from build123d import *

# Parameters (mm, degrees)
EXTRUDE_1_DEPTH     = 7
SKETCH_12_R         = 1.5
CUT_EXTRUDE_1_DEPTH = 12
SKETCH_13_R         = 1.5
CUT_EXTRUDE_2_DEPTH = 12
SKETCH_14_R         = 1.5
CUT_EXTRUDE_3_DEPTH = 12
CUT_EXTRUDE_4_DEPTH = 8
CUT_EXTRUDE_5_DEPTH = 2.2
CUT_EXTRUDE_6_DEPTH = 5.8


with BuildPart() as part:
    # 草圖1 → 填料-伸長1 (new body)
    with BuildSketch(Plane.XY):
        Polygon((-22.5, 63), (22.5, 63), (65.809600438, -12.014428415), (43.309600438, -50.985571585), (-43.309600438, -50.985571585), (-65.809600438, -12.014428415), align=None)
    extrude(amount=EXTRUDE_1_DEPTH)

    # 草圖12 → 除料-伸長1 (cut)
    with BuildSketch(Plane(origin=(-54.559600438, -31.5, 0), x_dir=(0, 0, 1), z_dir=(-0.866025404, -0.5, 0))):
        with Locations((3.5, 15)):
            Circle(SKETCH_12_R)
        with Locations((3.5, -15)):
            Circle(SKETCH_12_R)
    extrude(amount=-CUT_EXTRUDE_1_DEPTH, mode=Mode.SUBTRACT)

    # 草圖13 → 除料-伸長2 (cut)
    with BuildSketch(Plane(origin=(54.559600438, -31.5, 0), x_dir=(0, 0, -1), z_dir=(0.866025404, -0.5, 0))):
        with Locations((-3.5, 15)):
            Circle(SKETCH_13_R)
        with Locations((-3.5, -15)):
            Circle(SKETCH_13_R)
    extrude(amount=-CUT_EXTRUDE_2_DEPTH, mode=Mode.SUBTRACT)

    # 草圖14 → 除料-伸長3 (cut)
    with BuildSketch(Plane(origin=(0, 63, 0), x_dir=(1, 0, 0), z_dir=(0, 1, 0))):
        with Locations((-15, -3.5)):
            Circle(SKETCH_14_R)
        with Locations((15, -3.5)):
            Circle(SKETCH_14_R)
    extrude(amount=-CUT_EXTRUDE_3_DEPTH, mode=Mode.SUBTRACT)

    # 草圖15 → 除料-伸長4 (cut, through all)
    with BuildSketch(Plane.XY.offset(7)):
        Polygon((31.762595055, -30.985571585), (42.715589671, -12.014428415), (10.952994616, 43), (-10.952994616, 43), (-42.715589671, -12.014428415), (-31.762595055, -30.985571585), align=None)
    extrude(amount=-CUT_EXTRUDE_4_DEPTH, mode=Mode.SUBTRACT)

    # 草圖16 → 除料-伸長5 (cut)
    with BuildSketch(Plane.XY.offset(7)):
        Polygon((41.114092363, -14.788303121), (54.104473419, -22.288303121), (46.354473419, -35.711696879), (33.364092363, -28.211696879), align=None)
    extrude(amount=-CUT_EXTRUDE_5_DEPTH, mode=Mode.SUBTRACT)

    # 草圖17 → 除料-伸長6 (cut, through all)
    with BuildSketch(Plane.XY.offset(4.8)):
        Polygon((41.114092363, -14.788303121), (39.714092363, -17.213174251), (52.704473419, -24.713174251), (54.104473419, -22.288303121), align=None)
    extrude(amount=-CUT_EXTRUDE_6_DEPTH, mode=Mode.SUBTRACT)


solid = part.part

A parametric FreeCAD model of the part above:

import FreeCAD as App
import Part
import Sketcher

V = App.Vector
Q = App.Units.Quantity

doc = App.newDocument("Part")
body = doc.addObject("PartDesign::Body", "Body")

# Sketch on XY plane
sketch1 = doc.addObject("Sketcher::SketchObject", "Sketch")
body.addObject(sketch1)
sketch1.AttachmentSupport = (doc.XY_Plane, [""])
sketch1.MapMode = "FlatFace"
sketch1.addGeometry([
    Part.LineSegment(V(22, 63, 0), V(-22, 63, 0)),  # 0
    Part.LineSegment(V(-22, 63, 0), V(-66, -12, 0)),  # 1
    Part.LineSegment(V(-66, -12, 0), V(-43, -51, 0)),  # 2
    Part.LineSegment(V(-43, -51, 0), V(43, -51, 0)),  # 3
    Part.LineSegment(V(43, -51, 0), V(66, -12, 0)),  # 4
    Part.LineSegment(V(66, -12, 0), V(22, 63, 0)),  # 5
], False)
sketch1.addConstraint([
    Sketcher.Constraint("Coincident", 0, 2, 1, 1),
    Sketcher.Constraint("Coincident", 1, 2, 2, 1),
    Sketcher.Constraint("Coincident", 2, 2, 3, 1),
    Sketcher.Constraint("Coincident", 3, 2, 4, 1),
    Sketcher.Constraint("Coincident", 4, 2, 5, 1),
    Sketcher.Constraint("Coincident", 5, 2, 0, 1),
    Sketcher.Constraint("Horizontal", 0),
    Sketcher.Constraint("Horizontal", 3),
    Sketcher.Constraint("Symmetric", 1, 2, 4, 2, -2),
    Sketcher.Constraint("Parallel", 1, 4),
    Sketcher.Constraint("Parallel", 2, 5),
    Sketcher.Constraint("Equal", 2, 4),
    Sketcher.Constraint("DistanceX", 0, 2, 0, 1, 45.0),
    Sketcher.Constraint("Angle", 1, Q("-120 deg")),
    Sketcher.Constraint("Distance", 2, 45.0),
    Sketcher.Constraint("DistanceY", -1, 1, 0, 2, 63.0),
    Sketcher.Constraint("DistanceX", 3, 1, 3, 2, 86.619201),
])
pad1 = doc.addObject("PartDesign::Pad", "Pad")
body.addObject(pad1)
pad1.Profile = sketch1
pad1.Length = 7

# Sketch on an angled plane
sketch2 = doc.addObject("Sketcher::SketchObject", "Sketch001")
body.addObject(sketch2)
sketch2.Placement = App.Placement(V(-54.5596, -31.5, 0), App.Rotation(V(0, 0, 1), V(-0.5, 0.866025404, 0), V(-0.866025404, -0.5, 0), "ZXY"))
sketch2.addGeometry([
    Part.Circle(V(3.5, 15, 0), V(0, 0, 1), 1.5),
    Part.Circle(V(3.5, -15, 0), V(0, 0, 1), 1.5),
], False)
sketch2.addConstraint([
    Sketcher.Constraint("Equal", 0, 1),
    Sketcher.Constraint("Symmetric", 0, 3, 1, 3, -1),
    Sketcher.Constraint("Diameter", 0, 3.0),
    Sketcher.Constraint("DistanceY", -1, 1, 0, 3, 15.0),
    Sketcher.Constraint("DistanceX", -1, 1, 0, 3, 3.5),
])
pocket1 = doc.addObject("PartDesign::Pocket", "Pocket")
body.addObject(pocket1)
pocket1.Profile = sketch2
pocket1.Length = 12

# Sketch on an angled plane
sketch3 = doc.addObject("Sketcher::SketchObject", "Sketch002")
body.addObject(sketch3)
sketch3.Placement = App.Placement(V(54.5596, -31.5, 0), App.Rotation(V(0, 0, -1), V(0.5, 0.866025404, 0), V(0.866025404, -0.5, 0), "ZXY"))
sketch3.addGeometry([
    Part.Circle(V(-3.5, 15, 0), V(0, 0, 1), 1.5),
    Part.Circle(V(-3.5, -15, 0), V(0, 0, 1), 1.5),
], False)
sketch3.addConstraint([
    Sketcher.Constraint("Equal", 0, 1),
    Sketcher.Constraint("Symmetric", 0, 3, 1, 3, -1),
    Sketcher.Constraint("Diameter", 0, 3.0),
    Sketcher.Constraint("DistanceY", -1, 1, 0, 3, 15.0),
    Sketcher.Constraint("DistanceX", 0, 3, -1, 1, 3.5),
])
pocket2 = doc.addObject("PartDesign::Pocket", "Pocket001")
body.addObject(pocket2)
pocket2.Profile = sketch3
pocket2.Length = 12

# Sketch on XZ plane
sketch4 = doc.addObject("Sketcher::SketchObject", "Sketch003")
body.addObject(sketch4)
sketch4.AttachmentSupport = (doc.XZ_Plane, [""])
sketch4.MapMode = "FlatFace"
sketch4.AttachmentOffset = App.Placement(V(0, 0, -63), App.Rotation())
sketch4.addGeometry([
    Part.Circle(V(-15, 3.5, 0), V(0, 0, 1), 1.5),
    Part.Circle(V(15, 3.5, 0), V(0, 0, 1), 1.5),
], False)
sketch4.addConstraint([
    Sketcher.Constraint("Equal", 0, 1),
    Sketcher.Constraint("Symmetric", 0, 3, 1, 3, -2),
    Sketcher.Constraint("Diameter", 0, 3.0),
    Sketcher.Constraint("DistanceX", 0, 3, -1, 1, 15.0),
    Sketcher.Constraint("DistanceY", -1, 1, 0, 3, 3.5),
])
pocket3 = doc.addObject("PartDesign::Pocket", "Pocket002")
body.addObject(pocket3)
pocket3.Profile = sketch4
pocket3.Length = 12
pocket3.Reversed = True

# Sketch on XY plane
sketch5 = doc.addObject("Sketcher::SketchObject", "Sketch004")
body.addObject(sketch5)
sketch5.AttachmentSupport = (doc.XY_Plane, [""])
sketch5.MapMode = "FlatFace"
sketch5.AttachmentOffset = App.Placement(V(0, 0, 7), App.Rotation())
sketch5.addGeometry([
    Part.LineSegment(V(32, -31, 0), V(43, -12, 0)),  # 0
    Part.LineSegment(V(43, -12, 0), V(11, 43, 0)),  # 1
    Part.LineSegment(V(11, 43, 0), V(-11, 43, 0)),  # 2
    Part.LineSegment(V(-11, 43, 0), V(-43, -12, 0)),  # 3
    Part.LineSegment(V(-43, -12, 0), V(-32, -31, 0)),  # 4
    Part.LineSegment(V(-32, -31, 0), V(32, -31, 0)),  # 5
], False)
sketch5.addConstraint([
    Sketcher.Constraint("Coincident", 0, 2, 1, 1),
    Sketcher.Constraint("Coincident", 1, 2, 2, 1),
    Sketcher.Constraint("Coincident", 2, 2, 3, 1),
    Sketcher.Constraint("Coincident", 3, 2, 4, 1),
    Sketcher.Constraint("Coincident", 4, 2, 5, 1),
    Sketcher.Constraint("Coincident", 5, 2, 0, 1),
    Sketcher.Constraint("Horizontal", 2),
    Sketcher.Constraint("Horizontal", 5),
    Sketcher.Constraint("Symmetric", 0, 2, 3, 2, -2),
    Sketcher.Constraint("Parallel", 0, 3),
    Sketcher.Constraint("Parallel", 1, 4),
    Sketcher.Constraint("Equal", 1, 3),
    Sketcher.Constraint("Angle", 0, Q("60 deg")),
    Sketcher.Constraint("DistanceY", -1, 1, 1, 2, 43.0),
    Sketcher.Constraint("DistanceX", 2, 2, 2, 1, 21.905989),
    Sketcher.Constraint("DistanceX", 5, 1, 5, 2, 63.52519),
    Sketcher.Constraint("Distance", 0, 21.905989),
])
pocket4 = doc.addObject("PartDesign::Pocket", "Pocket003")
body.addObject(pocket4)
pocket4.Profile = sketch5
pocket4.Type = "ThroughAll"

# Sketch on XY plane
sketch6 = doc.addObject("Sketcher::SketchObject", "Sketch005")
body.addObject(sketch6)
sketch6.AttachmentSupport = (doc.XY_Plane, [""])
sketch6.MapMode = "FlatFace"
sketch6.AttachmentOffset = App.Placement(V(0, 0, 7), App.Rotation())
sketch6.addGeometry([
    Part.LineSegment(V(54, -22, 0), V(41, -15, 0)),
    Part.LineSegment(V(41, -15, 0), V(33, -28, 0)),
    Part.LineSegment(V(33, -28, 0), V(46, -36, 0)),
    Part.LineSegment(V(46, -36, 0), V(54, -22, 0)),
], False)
sketch6.addConstraint([
    Sketcher.Constraint("Coincident", 0, 2, 1, 1),
    Sketcher.Constraint("Coincident", 1, 2, 2, 1),
    Sketcher.Constraint("Coincident", 2, 2, 3, 1),
    Sketcher.Constraint("Coincident", 3, 2, 0, 1),
    Sketcher.Constraint("Perpendicular", 0, 1),
    Sketcher.Constraint("Perpendicular", 1, 2),
    Sketcher.Constraint("Perpendicular", 2, 3),
    Sketcher.Constraint("Angle", 0, Q("150 deg")),
    Sketcher.Constraint("Distance", 0, 15.0),
    Sketcher.Constraint("Distance", 1, 15.5),
    Sketcher.Constraint("DistanceX", -1, 1, 0, 2, 41.114092),
    Sketcher.Constraint("DistanceY", 0, 2, -1, 1, 14.788303),
])
pocket5 = doc.addObject("PartDesign::Pocket", "Pocket004")
body.addObject(pocket5)
pocket5.Profile = sketch6
pocket5.Length = 2.2

# Sketch on XY plane
sketch7 = doc.addObject("Sketcher::SketchObject", "Sketch006")
body.addObject(sketch7)
sketch7.AttachmentSupport = (doc.XY_Plane, [""])
sketch7.MapMode = "FlatFace"
sketch7.AttachmentOffset = App.Placement(V(0, 0, 4.8), App.Rotation())
sketch7.addGeometry([
    Part.LineSegment(V(41.1, -14.8, 0), V(39.7, -17.2, 0)),
    Part.LineSegment(V(39.7, -17.2, 0), V(52.7, -24.7, 0)),
    Part.LineSegment(V(52.7, -24.7, 0), V(54.1, -22.3, 0)),
    Part.LineSegment(V(54.1, -22.3, 0), V(41.1, -14.8, 0)),
], False)
sketch7.addConstraint([
    Sketcher.Constraint("Coincident", 0, 2, 1, 1),
    Sketcher.Constraint("Coincident", 1, 2, 2, 1),
    Sketcher.Constraint("Coincident", 2, 2, 3, 1),
    Sketcher.Constraint("Coincident", 3, 2, 0, 1),
    Sketcher.Constraint("Perpendicular", 0, 1),
    Sketcher.Constraint("Perpendicular", 1, 2),
    Sketcher.Constraint("Perpendicular", 2, 3),
    Sketcher.Constraint("Angle", 0, Q("-120 deg")),
    Sketcher.Constraint("Distance", 1, 15.0),
    Sketcher.Constraint("Distance", 0, 2.8),
    Sketcher.Constraint("DistanceX", -1, 1, 0, 2, 39.714092),
    Sketcher.Constraint("DistanceY", 0, 2, -1, 1, 17.213174),
])
pocket6 = doc.addObject("PartDesign::Pocket", "Pocket005")
body.addObject(pocket6)
pocket6.Profile = sketch7
pocket6.Type = "ThroughAll"

doc.recompute()
